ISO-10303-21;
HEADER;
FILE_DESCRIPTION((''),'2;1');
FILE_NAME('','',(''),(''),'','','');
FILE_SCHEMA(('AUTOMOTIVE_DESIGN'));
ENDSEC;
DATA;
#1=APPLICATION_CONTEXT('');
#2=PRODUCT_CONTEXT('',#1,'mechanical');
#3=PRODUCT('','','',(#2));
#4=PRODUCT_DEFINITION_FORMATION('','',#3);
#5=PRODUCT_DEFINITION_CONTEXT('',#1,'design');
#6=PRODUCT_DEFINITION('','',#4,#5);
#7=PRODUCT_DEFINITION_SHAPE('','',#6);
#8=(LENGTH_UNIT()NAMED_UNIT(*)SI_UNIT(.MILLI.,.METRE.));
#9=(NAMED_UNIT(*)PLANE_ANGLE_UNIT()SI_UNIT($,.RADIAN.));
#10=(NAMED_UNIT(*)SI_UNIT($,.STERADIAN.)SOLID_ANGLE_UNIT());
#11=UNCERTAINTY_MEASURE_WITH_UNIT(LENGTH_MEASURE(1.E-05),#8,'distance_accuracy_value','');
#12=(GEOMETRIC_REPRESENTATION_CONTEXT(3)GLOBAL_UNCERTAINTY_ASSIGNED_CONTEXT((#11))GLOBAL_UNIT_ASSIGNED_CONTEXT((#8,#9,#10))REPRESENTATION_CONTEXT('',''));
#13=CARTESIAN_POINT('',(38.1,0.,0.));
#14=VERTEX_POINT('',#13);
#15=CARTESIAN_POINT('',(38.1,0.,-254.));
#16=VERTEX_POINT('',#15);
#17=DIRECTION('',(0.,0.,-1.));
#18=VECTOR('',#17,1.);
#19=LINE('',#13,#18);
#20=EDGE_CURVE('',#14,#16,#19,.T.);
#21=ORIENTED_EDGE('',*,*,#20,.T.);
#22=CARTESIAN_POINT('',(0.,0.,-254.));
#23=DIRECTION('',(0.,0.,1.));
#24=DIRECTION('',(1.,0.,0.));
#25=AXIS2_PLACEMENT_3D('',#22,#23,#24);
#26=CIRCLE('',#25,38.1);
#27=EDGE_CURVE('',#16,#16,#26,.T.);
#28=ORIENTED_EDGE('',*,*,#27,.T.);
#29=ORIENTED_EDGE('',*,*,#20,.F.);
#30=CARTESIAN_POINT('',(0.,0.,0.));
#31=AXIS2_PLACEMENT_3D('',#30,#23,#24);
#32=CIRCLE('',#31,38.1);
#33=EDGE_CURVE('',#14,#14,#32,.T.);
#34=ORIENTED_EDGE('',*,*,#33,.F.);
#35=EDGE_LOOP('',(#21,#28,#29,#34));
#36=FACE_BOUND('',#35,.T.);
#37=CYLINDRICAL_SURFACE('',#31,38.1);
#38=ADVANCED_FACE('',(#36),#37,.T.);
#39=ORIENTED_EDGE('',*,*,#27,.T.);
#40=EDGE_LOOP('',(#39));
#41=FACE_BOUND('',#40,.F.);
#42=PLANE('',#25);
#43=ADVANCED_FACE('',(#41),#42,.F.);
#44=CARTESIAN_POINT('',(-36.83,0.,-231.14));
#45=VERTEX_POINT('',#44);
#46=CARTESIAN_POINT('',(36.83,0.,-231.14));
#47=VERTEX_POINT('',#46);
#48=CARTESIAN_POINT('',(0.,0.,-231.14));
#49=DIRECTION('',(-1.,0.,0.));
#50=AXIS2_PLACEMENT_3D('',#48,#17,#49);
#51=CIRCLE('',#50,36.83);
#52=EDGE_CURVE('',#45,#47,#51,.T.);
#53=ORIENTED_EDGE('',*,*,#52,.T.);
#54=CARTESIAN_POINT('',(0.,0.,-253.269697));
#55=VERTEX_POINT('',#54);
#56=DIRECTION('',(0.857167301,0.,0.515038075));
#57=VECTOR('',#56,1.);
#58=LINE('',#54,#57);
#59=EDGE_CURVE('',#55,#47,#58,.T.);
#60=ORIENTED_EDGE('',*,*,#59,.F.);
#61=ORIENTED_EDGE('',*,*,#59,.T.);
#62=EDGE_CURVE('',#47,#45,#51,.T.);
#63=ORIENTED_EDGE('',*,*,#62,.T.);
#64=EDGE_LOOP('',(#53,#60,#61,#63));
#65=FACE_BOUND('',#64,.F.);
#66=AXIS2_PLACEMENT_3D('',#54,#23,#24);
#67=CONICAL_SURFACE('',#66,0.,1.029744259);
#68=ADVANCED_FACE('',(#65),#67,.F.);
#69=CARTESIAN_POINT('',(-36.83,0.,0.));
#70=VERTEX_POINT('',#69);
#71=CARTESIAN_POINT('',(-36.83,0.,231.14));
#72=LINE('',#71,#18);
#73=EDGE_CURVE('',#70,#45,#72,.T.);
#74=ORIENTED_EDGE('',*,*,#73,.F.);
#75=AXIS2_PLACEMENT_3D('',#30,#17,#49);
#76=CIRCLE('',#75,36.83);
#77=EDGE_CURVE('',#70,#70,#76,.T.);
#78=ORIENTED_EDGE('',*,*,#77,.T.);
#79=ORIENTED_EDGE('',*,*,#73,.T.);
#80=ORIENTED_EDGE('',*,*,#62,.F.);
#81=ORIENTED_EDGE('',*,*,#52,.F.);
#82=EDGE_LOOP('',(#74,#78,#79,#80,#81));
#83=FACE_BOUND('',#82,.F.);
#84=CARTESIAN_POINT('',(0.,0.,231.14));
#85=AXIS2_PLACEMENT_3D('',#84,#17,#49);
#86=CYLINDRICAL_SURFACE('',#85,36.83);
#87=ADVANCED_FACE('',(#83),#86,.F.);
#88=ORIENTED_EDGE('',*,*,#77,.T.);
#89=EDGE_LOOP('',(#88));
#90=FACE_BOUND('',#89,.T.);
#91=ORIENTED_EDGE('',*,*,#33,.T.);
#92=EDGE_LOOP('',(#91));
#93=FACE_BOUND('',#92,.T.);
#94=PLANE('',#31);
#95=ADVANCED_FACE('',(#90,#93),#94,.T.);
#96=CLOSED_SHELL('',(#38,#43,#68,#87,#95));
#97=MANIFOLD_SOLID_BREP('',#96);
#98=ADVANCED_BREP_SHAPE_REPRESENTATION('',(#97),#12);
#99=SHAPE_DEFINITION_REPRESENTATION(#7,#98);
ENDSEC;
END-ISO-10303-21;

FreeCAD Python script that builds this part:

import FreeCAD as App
import Part
import Sketcher

V = App.Vector
Q = App.Units.Quantity

doc = App.newDocument("Part")
body = doc.addObject("PartDesign::Body", "Body")

sketch1 = body.newObject("Sketcher::SketchObject", "Sketch")
sketch1.AttachmentSupport = (doc.getObject("XY_Plane"), [""])
sketch1.MapMode = "FlatFace"
sketch1.addGeometry(Part.Circle(V(0, 0, 0), V(0, 0, 1), 38), False)
sketch1.addConstraint([
    Sketcher.Constraint("Coincident", 0, 3, -1, 1),
    Sketcher.Constraint("Diameter", 0, Q("3 in")),
])
pad1 = body.newObject("PartDesign::Pad", "Pad")
pad1.Profile = sketch1
pad1.Length = Q("10 in")
pad1.Reversed = True

sketch2 = body.newObject("Sketcher::SketchObject", "Sketch001")
sketch2.AttachmentSupport = (doc.getObject("XY_Plane"), [""])
sketch2.MapMode = "FlatFace"
sketch2.addGeometry(Part.Circle(V(0, 0, 0), V(0, 0, 1), 37), False)
sketch2.addConstraint([
    Sketcher.Constraint("Coincident", 0, 3, -1, 1),
    Sketcher.Constraint("Diameter", 0, Q("2.9 in")),
])
doc.recompute()
hole = body.newObject("PartDesign::Hole", "Hole")
hole.Profile = sketch2
hole.ThreadType = "None"
hole.Diameter = Q("2.9 in")
hole.DepthType = "Dimension"
hole.Depth = Q("9.1 in")
hole.DrillPoint = "Angled"
hole.DrillPointAngle = 118

doc.recompute()
